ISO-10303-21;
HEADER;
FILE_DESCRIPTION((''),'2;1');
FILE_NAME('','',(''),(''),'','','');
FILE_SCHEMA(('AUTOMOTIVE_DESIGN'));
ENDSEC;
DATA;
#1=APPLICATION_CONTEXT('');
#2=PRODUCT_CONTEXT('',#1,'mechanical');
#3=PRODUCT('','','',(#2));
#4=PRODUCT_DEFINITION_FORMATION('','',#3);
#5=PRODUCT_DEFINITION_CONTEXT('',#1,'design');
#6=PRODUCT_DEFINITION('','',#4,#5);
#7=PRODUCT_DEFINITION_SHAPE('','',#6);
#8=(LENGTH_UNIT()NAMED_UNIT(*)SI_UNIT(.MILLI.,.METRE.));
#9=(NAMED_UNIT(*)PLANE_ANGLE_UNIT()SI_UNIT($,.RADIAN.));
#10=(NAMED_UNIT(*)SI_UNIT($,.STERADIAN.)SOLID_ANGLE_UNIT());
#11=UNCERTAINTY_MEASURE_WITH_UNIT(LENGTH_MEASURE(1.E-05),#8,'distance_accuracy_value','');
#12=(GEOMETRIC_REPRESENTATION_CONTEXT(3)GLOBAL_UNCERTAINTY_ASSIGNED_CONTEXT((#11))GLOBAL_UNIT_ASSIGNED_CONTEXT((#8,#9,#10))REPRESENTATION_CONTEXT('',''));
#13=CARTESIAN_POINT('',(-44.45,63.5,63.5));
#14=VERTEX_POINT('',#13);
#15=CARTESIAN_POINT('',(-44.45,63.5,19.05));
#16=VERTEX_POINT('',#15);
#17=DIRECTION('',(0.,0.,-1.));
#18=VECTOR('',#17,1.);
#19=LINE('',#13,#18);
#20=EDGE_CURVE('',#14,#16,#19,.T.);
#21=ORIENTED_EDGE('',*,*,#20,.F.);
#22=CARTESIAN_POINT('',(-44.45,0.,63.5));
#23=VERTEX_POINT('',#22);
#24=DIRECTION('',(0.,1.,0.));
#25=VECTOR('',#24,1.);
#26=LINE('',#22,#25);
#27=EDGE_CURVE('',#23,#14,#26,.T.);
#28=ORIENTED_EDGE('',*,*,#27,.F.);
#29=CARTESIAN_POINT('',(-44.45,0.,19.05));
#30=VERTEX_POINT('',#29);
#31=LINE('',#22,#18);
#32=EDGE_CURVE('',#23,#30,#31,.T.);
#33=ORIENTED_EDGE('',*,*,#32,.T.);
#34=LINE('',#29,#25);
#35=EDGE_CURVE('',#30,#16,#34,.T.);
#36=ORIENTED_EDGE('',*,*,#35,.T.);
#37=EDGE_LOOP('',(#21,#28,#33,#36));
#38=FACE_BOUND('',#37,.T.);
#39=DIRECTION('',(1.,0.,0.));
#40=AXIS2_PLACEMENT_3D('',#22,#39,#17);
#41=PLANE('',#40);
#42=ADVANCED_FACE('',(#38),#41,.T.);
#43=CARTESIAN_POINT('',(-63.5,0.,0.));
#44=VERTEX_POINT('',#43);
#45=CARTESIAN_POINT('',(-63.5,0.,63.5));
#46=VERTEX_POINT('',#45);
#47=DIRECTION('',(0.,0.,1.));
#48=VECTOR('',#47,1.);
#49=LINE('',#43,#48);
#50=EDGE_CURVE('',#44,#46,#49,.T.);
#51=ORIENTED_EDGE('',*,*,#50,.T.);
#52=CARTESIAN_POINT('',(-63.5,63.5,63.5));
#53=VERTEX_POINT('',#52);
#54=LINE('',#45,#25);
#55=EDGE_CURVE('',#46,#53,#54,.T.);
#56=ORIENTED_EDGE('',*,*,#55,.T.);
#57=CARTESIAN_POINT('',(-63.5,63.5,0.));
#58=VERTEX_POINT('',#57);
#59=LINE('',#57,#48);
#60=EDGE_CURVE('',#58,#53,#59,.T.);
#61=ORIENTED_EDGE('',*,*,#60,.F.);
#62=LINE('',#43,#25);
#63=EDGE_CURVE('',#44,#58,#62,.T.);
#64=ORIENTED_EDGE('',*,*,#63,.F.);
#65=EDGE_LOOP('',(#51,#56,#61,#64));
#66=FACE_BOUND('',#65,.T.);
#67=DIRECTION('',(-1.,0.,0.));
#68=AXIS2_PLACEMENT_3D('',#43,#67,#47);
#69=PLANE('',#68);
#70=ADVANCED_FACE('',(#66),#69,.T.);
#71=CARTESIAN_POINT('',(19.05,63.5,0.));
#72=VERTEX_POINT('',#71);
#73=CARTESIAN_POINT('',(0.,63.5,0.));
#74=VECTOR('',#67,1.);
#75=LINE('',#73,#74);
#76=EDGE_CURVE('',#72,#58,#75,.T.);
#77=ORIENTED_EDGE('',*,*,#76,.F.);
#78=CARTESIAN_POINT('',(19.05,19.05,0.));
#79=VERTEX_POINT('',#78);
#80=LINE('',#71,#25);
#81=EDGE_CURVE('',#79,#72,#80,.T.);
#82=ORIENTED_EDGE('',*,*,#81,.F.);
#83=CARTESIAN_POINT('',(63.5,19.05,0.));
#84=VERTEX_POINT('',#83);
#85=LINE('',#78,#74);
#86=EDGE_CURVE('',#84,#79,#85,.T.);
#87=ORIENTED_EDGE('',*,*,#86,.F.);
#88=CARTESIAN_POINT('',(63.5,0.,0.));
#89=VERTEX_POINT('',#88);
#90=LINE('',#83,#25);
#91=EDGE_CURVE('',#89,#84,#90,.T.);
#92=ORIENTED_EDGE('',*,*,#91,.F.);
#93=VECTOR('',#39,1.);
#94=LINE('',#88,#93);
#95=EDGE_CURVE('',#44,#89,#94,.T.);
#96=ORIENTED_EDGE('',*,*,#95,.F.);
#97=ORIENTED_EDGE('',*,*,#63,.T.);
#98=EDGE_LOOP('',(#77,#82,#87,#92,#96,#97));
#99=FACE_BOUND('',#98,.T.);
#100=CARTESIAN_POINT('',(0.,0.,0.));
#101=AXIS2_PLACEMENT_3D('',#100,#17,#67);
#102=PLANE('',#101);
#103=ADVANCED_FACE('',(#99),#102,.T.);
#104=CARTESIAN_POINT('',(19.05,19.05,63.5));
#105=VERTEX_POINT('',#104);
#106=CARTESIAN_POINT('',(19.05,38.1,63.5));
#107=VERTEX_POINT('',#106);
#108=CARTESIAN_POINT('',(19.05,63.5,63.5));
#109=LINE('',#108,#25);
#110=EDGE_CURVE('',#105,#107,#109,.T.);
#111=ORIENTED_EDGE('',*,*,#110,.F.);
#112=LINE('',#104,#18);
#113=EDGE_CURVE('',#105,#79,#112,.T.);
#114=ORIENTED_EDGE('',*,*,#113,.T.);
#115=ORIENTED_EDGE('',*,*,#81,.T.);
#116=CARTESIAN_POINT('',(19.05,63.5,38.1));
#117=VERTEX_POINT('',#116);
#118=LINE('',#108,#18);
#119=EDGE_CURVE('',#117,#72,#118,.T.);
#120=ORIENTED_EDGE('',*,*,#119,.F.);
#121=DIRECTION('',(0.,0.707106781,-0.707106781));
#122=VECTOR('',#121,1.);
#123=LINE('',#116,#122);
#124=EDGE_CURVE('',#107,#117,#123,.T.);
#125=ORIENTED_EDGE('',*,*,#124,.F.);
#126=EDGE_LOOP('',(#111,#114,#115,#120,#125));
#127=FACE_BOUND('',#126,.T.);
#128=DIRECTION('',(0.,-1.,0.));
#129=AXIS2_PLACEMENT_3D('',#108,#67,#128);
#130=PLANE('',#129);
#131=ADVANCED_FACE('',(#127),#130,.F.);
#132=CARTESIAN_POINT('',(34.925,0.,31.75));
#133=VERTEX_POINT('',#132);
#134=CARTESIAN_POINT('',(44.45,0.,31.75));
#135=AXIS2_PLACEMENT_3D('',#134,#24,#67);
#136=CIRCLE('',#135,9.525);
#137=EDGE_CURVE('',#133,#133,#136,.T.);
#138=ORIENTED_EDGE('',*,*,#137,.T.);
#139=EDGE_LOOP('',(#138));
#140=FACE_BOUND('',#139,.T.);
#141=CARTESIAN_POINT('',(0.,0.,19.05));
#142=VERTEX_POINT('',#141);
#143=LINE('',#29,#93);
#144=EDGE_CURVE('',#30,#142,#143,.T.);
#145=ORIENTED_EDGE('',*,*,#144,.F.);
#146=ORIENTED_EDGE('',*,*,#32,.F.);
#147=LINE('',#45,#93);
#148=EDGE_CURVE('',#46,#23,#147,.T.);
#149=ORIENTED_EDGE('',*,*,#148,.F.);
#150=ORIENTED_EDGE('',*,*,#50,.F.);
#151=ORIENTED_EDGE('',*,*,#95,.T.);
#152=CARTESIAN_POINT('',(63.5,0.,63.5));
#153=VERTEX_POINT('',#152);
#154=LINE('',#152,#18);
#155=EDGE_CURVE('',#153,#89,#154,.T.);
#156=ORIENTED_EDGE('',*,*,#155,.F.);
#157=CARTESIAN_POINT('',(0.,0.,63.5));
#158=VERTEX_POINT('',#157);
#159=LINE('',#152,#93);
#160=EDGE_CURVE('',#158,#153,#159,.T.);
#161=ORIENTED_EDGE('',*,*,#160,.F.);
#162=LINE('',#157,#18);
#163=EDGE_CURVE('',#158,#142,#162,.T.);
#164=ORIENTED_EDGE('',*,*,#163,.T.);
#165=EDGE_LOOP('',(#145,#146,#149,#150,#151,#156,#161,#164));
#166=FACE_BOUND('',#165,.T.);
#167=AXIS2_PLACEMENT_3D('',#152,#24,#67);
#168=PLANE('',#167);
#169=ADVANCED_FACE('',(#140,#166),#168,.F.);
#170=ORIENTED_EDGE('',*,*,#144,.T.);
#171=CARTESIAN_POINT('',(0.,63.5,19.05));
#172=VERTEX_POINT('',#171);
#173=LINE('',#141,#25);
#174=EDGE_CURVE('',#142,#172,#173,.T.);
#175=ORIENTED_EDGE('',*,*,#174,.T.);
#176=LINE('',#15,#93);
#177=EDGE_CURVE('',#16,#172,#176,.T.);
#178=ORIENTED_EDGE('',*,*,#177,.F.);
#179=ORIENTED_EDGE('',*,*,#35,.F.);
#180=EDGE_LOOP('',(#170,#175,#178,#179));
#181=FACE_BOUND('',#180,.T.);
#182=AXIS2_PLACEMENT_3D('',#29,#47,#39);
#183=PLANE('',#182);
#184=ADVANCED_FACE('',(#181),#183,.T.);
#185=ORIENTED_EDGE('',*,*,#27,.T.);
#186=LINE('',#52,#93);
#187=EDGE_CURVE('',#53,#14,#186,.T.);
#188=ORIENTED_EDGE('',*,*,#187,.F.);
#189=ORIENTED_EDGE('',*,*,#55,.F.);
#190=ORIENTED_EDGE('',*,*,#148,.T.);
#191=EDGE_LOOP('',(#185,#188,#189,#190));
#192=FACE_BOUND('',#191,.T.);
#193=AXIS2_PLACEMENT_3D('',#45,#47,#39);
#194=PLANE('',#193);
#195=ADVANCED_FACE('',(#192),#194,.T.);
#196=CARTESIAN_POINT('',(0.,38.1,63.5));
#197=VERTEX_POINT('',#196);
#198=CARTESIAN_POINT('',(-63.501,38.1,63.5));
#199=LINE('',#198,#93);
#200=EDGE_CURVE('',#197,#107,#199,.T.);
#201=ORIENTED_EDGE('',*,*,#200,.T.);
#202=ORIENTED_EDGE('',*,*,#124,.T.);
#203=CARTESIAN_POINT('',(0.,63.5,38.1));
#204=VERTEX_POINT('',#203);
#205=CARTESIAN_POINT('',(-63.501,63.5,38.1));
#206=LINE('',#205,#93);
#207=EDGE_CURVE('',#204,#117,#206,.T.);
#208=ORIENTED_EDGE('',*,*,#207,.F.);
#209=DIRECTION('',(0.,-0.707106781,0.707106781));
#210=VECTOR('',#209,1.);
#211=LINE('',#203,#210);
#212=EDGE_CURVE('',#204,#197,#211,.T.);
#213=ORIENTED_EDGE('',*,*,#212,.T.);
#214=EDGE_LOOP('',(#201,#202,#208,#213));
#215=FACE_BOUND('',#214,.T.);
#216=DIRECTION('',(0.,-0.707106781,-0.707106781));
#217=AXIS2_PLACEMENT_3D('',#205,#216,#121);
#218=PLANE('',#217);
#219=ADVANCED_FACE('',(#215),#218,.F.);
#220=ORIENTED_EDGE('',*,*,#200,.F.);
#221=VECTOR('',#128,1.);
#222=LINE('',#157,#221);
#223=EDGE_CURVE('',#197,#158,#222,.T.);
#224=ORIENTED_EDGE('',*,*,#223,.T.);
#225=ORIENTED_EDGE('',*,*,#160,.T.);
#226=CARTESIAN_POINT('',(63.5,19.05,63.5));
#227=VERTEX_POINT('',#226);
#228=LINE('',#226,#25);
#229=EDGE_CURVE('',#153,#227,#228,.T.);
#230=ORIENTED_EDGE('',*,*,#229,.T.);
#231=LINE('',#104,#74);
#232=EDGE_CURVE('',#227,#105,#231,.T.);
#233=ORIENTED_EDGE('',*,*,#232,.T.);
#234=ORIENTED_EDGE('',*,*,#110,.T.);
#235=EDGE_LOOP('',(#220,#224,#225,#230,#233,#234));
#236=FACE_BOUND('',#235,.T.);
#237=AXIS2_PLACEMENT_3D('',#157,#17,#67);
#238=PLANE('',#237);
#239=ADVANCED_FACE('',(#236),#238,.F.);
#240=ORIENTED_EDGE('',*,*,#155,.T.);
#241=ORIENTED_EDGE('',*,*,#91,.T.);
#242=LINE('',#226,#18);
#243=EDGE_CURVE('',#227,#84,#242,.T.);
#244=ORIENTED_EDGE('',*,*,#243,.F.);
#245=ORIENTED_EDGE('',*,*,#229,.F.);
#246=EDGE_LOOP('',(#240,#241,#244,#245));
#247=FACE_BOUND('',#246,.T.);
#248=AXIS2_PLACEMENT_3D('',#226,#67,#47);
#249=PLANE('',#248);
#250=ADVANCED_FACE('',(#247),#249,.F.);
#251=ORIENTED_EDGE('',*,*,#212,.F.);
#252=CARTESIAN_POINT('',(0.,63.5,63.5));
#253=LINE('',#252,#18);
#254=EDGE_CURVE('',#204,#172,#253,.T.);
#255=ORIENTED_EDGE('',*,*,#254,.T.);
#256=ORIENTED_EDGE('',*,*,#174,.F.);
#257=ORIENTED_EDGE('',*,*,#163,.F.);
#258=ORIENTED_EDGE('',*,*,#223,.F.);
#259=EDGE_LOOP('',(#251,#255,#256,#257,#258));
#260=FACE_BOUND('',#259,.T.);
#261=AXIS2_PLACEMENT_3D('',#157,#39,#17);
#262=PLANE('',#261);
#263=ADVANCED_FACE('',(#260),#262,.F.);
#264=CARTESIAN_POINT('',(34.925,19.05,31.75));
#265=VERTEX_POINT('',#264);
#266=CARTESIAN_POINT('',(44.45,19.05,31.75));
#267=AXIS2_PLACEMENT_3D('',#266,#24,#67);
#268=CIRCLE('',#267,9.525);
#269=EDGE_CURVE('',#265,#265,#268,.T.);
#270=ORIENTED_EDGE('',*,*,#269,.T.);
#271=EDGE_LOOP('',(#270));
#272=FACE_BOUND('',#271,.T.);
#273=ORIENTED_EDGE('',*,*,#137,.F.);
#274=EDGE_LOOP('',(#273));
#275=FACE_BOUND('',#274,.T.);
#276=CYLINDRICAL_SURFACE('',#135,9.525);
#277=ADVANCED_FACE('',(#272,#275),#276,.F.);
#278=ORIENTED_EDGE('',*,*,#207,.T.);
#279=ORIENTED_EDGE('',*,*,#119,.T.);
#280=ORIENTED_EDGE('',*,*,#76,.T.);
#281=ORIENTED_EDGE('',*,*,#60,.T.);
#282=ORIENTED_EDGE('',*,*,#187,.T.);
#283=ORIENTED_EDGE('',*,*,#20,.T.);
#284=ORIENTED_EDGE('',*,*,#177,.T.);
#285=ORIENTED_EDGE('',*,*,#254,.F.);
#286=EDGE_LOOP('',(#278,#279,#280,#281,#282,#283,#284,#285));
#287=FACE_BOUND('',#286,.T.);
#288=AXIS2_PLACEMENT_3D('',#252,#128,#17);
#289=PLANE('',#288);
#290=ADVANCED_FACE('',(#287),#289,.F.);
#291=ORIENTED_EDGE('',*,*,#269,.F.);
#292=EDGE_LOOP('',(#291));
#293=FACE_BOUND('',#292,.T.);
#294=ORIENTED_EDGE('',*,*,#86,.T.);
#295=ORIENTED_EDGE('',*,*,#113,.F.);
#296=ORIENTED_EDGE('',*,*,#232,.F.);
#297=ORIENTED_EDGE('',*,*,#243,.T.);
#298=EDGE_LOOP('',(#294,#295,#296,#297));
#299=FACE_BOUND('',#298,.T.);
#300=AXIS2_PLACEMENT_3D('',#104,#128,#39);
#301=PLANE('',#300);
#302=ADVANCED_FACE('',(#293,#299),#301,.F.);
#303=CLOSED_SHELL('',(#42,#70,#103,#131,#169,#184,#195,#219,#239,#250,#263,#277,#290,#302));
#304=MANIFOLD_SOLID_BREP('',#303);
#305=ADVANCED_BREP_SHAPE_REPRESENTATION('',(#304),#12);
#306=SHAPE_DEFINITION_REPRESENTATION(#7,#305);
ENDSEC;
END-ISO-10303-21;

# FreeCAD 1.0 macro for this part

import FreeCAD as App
import Part
import Sketcher
from FreeCAD import Vector
Q = App.Units.Quantity


def add_polygon(sketch, points):
    """Adds a closed chain of lines whose ends are joined by coincident constraints."""
    first, n = sketch.GeometryCount, len(points)
    for a, b in zip(points, points[1:] + points[:1]):
        sketch.addGeometry(Part.LineSegment(App.Vector(*a, 0), App.Vector(*b, 0)), False)
    for i in range(n):
        sketch.addConstraint(Sketcher.Constraint("Coincident", first + i, 2, first + (i + 1) % n, 1))

doc = App.newDocument("Part")
body = doc.addObject("PartDesign::Body", "Body")

sketch1 = body.newObject("Sketcher::SketchObject", "Sketch")
sketch1.AttachmentSupport = (doc.getObject("XY_Plane"), [""])
sketch1.MapMode = "FlatFace"
add_polygon(sketch1, [(19.05, 63.5), (0, 63.5), (0, 0), (63.5, 0), (63.5, 19.05), (19.05, 19.05)])
sketch1.addConstraint(Sketcher.Constraint("Horizontal", 0))
sketch1.addConstraint(Sketcher.Constraint("Vertical", 1))
sketch1.addConstraint(Sketcher.Constraint("Horizontal", 2))
sketch1.addConstraint(Sketcher.Constraint("Vertical", 3))
sketch1.addConstraint(Sketcher.Constraint("Horizontal", 4))
sketch1.addConstraint(Sketcher.Constraint("Vertical", 5))
sketch1.addConstraint(Sketcher.Constraint("Coincident", 1, 2, -1, 1))
sketch1.addConstraint(Sketcher.Constraint("Equal", 2, 1))
sketch1.addConstraint(Sketcher.Constraint("Equal", 0, 3))
sketch1.addConstraint(Sketcher.Constraint("DistanceX", 2, 1, 2, 2, Q("2.5 in")))
sketch1.addConstraint(Sketcher.Constraint("DistanceX", 0, 2, 0, 1, Q("0.75 in")))
pad1 = body.newObject("PartDesign::Pad", "Pad")
pad1.Profile = sketch1
pad1.Length = Q("2.5 in")

sketch2 = body.newObject("Sketcher::SketchObject", "Sketch001")
sketch2.AttachmentSupport = (doc.getObject("XZ_Plane"), [""])
sketch2.MapMode = "FlatFace"
sketch2.AttachmentOffset = App.Placement(Vector(0, 0, -2.5 * 25.4), App.Rotation())
add_polygon(sketch2, [(0, 0), (-63.5, 0), (-63.5, 63.5), (-44.45, 63.5), (-44.45, 19.05), (0, 19.05)])
sketch2.addConstraint(Sketcher.Constraint("Horizontal", 0))
sketch2.addConstraint(Sketcher.Constraint("Vertical", 1))
sketch2.addConstraint(Sketcher.Constraint("Horizontal", 2))
sketch2.addConstraint(Sketcher.Constraint("Vertical", 3))
sketch2.addConstraint(Sketcher.Constraint("Horizontal", 4))
sketch2.addConstraint(Sketcher.Constraint("Vertical", 5))
sketch2.addConstraint(Sketcher.Constraint("Coincident", 5, 2, -1, 1))
sketch2.addConstraint(Sketcher.Constraint("Equal", 0, 1))
sketch2.addConstraint(Sketcher.Constraint("Equal", 4, 3))
sketch2.addConstraint(Sketcher.Constraint("DistanceX", 0, 2, 0, 1, Q("2.5 in")))
sketch2.addConstraint(Sketcher.Constraint("DistanceX", 2, 1, 2, 2, Q("0.75 in")))
pad2 = body.newObject("PartDesign::Pad", "Pad001")
pad2.Profile = sketch2
pad2.Length = Q("2.5 in")

sketch3 = body.newObject("Sketcher::SketchObject", "Sketch002")
sketch3.AttachmentSupport = (doc.getObject("XZ_Plane"), [""])
sketch3.MapMode = "FlatFace"
sketch3.AttachmentOffset = App.Placement(Vector(0, 0, -0.75 * 25.4), App.Rotation())
sketch3.addGeometry(Part.Circle(Vector(44.45, 31.75, 0), Vector(0, 0, 1), 9.525), False)
sketch3.addConstraint(Sketcher.Constraint("Diameter", 0, Q("0.75 in")))
sketch3.addConstraint(Sketcher.Constraint("DistanceX", -1, 1, 0, 3, Q("1.75 in")))
sketch3.addConstraint(Sketcher.Constraint("DistanceY", -1, 1, 0, 3, Q("1.25 in")))
pocket1 = body.newObject("PartDesign::Pocket", "Pocket")
pocket1.Profile = sketch3
pocket1.Type = "ThroughAll"
pocket1.Reversed = True

sketch4 = body.newObject("Sketcher::SketchObject", "Sketch003")
sketch4.AttachmentSupport = (doc.getObject("YZ_Plane"), [""])
sketch4.MapMode = "FlatFace"
sketch4.AttachmentOffset = App.Placement(Vector(0, 0, 0.75 * 25.4), App.Rotation())
add_polygon(sketch4, [(63.5, 38.1), (63.5, 63.5), (38.1, 63.5)])
sketch4.addConstraint(Sketcher.Constraint("Vertical", 0))
sketch4.addConstraint(Sketcher.Constraint("Horizontal", 1))
sketch4.addConstraint(Sketcher.Constraint("Equal", 1, 0))
sketch4.addConstraint(Sketcher.Constraint("DistanceX", 1, 2, 1, 1, Q("1 in")))
sketch4.addConstraint(Sketcher.Constraint("DistanceX", -1, 1, 0, 2, Q("2.5 in")))
sketch4.addConstraint(Sketcher.Constraint("DistanceY", -1, 1, 0, 2, Q("2.5 in")))
pocket2 = body.newObject("PartDesign::Pocket", "Pocket001")
pocket2.Profile = sketch4
pocket2.Type = "UpToFirst"

doc.recompute()
